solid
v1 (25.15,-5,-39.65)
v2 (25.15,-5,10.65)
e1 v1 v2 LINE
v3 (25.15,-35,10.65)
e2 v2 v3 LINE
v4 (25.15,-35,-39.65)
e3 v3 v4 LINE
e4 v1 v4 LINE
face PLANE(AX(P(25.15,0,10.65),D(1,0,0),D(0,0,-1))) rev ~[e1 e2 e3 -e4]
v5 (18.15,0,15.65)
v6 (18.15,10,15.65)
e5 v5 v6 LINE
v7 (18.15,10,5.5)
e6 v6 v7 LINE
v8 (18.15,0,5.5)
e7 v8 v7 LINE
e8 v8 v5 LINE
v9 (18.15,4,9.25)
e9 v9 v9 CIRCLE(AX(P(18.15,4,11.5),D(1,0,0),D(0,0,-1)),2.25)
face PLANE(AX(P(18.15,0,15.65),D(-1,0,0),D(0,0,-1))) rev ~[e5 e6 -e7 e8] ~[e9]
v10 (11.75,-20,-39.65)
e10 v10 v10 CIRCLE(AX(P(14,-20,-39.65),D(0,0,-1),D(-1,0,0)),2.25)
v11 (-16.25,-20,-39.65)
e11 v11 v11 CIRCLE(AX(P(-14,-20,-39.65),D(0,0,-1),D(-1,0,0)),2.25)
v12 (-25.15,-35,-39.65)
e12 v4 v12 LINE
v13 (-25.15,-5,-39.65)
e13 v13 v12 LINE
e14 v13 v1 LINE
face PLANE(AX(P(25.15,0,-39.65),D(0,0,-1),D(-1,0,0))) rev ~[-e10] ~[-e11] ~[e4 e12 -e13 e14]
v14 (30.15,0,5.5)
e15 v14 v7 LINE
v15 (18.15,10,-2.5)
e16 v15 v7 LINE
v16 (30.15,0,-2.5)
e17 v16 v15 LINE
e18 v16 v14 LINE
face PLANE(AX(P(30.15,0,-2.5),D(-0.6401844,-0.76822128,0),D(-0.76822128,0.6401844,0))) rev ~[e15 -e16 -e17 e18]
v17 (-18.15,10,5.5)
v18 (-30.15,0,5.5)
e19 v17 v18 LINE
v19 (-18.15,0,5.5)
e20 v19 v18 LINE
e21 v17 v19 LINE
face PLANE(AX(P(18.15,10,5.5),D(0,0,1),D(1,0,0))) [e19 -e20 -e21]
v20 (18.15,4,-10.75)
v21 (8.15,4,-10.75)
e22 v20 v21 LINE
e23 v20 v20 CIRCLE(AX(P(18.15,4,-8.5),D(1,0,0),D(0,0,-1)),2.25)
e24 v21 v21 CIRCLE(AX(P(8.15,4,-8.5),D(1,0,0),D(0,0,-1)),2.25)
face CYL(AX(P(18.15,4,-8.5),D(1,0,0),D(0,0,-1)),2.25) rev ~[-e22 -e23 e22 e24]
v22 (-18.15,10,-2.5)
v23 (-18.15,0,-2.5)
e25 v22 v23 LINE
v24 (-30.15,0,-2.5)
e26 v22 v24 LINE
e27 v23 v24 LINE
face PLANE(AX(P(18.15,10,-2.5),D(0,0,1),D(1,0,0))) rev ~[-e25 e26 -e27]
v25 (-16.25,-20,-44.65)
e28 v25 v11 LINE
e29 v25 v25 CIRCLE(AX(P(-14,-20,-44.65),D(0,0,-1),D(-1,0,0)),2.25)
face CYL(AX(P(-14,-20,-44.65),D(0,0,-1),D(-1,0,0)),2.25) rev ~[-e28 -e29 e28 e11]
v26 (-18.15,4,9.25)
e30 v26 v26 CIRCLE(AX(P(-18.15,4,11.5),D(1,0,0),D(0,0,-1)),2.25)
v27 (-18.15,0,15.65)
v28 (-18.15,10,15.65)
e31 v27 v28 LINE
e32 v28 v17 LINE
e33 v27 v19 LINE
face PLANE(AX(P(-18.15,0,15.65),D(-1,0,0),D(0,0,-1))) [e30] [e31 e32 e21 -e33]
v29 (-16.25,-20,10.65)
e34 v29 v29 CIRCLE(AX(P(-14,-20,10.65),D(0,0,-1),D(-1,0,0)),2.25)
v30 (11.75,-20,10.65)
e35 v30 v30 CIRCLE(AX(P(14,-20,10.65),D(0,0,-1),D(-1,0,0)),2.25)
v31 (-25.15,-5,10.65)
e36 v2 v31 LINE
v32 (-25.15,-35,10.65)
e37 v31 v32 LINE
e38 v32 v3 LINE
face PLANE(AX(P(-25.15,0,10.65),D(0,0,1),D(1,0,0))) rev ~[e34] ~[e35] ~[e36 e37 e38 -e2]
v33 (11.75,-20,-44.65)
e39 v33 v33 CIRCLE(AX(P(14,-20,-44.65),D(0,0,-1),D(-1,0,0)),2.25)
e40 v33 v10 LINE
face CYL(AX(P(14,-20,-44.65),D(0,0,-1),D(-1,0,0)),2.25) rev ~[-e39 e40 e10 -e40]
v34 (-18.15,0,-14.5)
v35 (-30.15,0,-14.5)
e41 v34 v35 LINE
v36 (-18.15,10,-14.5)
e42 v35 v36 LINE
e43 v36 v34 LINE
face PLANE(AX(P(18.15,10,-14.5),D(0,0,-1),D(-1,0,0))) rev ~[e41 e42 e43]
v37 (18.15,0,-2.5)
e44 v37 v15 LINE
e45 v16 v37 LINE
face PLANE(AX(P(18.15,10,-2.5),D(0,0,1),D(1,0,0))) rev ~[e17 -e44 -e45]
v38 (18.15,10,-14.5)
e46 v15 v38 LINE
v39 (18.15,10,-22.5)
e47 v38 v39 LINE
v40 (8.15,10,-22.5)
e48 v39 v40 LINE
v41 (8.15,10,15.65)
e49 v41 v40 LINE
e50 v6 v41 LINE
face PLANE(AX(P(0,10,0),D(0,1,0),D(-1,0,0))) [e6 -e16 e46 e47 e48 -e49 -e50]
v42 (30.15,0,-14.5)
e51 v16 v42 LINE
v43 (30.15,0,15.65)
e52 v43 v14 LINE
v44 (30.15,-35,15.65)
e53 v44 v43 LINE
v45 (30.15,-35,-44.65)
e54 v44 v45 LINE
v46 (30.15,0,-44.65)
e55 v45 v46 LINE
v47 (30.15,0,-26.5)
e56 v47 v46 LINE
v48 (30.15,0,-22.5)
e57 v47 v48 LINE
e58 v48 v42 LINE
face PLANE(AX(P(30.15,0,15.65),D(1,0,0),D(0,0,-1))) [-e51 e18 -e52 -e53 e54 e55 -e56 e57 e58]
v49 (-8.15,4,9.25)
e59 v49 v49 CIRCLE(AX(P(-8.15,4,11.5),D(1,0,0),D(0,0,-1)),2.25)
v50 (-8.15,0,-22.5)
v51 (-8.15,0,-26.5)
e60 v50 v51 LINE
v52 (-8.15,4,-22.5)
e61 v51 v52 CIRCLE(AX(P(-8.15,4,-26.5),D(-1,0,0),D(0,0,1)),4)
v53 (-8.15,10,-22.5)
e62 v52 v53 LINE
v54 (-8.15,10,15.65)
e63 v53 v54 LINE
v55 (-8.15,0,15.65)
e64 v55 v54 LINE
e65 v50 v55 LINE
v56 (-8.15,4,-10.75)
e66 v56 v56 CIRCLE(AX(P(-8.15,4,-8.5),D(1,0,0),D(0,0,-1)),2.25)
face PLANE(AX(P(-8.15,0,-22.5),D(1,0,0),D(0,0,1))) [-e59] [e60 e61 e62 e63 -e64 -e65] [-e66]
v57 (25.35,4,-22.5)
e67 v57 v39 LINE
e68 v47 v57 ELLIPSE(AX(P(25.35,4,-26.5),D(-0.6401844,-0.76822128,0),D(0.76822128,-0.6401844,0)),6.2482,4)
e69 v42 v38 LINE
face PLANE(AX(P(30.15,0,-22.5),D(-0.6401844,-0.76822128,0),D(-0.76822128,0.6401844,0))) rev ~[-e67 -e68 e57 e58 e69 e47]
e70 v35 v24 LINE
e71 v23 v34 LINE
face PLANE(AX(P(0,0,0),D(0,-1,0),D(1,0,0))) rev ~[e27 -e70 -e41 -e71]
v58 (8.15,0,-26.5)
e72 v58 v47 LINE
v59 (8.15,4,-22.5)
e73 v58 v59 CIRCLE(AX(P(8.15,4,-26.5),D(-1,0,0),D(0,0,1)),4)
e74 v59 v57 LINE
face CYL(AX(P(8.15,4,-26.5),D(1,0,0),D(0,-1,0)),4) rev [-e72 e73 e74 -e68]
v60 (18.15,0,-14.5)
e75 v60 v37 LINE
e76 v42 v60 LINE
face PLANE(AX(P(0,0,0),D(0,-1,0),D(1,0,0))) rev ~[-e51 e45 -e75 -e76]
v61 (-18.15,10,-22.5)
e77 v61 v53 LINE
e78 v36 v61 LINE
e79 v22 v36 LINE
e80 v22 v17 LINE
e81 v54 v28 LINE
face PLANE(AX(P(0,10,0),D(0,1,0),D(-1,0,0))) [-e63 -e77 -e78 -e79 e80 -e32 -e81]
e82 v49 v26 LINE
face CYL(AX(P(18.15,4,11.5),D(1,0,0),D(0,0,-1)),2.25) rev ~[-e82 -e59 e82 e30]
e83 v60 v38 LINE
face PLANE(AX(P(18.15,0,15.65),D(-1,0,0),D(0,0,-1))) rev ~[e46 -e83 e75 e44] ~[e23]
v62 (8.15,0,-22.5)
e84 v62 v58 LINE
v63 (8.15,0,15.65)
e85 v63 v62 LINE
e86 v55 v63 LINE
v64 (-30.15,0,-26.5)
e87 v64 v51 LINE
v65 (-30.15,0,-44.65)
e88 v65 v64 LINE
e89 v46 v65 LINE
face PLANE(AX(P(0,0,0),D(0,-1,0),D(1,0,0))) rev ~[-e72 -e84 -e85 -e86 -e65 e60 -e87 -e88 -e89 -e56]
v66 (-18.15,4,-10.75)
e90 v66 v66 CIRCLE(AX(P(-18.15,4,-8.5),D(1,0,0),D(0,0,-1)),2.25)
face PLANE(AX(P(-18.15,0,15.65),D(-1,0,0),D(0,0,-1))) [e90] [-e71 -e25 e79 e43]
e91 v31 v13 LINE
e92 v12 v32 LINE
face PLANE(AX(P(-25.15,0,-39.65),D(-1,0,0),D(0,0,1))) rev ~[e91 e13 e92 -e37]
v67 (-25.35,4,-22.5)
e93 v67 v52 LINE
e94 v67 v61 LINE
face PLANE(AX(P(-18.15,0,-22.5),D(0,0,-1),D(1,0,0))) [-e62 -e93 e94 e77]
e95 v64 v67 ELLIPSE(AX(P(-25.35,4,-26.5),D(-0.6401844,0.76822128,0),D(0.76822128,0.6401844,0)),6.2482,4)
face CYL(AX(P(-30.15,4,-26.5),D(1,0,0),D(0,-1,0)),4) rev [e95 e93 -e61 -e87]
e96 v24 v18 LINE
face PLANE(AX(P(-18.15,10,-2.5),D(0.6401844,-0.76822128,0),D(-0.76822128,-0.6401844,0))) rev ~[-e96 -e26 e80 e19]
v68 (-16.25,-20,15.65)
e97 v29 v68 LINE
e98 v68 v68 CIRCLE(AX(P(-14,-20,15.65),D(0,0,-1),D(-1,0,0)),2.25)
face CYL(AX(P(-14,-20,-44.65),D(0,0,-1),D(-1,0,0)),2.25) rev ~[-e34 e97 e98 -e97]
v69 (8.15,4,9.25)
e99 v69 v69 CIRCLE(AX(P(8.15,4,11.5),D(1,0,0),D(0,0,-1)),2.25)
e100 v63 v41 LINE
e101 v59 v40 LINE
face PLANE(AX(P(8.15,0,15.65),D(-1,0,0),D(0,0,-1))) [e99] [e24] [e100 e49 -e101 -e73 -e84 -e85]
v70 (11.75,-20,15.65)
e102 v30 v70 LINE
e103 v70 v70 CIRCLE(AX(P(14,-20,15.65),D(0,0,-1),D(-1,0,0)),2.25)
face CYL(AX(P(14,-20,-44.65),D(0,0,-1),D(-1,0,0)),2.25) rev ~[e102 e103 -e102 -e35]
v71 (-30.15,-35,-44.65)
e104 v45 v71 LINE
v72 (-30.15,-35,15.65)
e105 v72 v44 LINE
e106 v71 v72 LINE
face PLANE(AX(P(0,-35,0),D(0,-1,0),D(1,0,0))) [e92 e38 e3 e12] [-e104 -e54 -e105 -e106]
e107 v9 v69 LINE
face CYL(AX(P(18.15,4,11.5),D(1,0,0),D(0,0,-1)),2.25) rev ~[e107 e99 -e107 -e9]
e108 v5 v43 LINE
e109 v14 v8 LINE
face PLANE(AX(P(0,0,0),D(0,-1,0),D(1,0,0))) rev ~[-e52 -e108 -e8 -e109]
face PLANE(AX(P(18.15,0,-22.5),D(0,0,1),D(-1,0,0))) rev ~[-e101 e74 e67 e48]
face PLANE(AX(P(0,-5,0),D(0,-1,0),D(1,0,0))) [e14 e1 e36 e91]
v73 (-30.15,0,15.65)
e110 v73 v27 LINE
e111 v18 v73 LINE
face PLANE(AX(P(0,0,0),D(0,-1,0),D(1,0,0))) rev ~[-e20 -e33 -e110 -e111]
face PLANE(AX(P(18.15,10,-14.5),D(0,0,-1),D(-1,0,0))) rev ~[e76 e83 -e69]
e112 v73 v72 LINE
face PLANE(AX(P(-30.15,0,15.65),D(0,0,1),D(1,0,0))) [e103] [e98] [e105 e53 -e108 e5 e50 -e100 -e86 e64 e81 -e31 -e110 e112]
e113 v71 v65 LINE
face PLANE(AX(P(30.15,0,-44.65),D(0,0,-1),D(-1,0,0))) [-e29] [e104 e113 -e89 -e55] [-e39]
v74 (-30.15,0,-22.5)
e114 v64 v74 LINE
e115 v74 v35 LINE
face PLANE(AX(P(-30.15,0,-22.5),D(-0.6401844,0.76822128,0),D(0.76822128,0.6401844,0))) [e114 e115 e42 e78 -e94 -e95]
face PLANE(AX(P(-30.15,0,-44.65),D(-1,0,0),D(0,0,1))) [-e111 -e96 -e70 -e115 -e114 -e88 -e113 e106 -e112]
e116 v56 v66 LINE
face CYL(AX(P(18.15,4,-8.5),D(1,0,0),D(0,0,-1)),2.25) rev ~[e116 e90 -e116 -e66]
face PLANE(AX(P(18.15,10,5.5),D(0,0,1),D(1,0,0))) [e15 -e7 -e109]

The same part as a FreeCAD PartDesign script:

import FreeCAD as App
import Part
import Sketcher

V = App.Vector


def edges_at(feature, points):
    """Names of the edges that pass closest to the given points."""
    edges = feature.Shape.Edges
    near = lambda p: min(range(len(edges)), key=lambda i: edges[i].distToShape(Part.Vertex(*p))[0])
    return sorted({f"Edge{near(p) + 1}" for p in points})


def add_polygon(sketch, points):
    """Adds a closed chain of lines whose ends are joined by coincident constraints."""
    first, n = sketch.GeometryCount, len(points)
    for a, b in zip(points, points[1:] + points[:1]):
        sketch.addGeometry(Part.LineSegment(App.Vector(*a, 0), App.Vector(*b, 0)), False)
    for i in range(n):
        sketch.addConstraint(Sketcher.Constraint("Coincident", first + i, 2, first + (i + 1) % n, 1))

doc = App.newDocument("Part")
body = doc.addObject("PartDesign::Body", "Body")
body.AllowCompound = True

sketch1 = body.newObject("Sketcher::SketchObject", "Sketch")
sketch1.AttachmentSupport = (doc.getObject("XZ_Plane"), [""])
sketch1.MapMode = "FlatFace"
add_polygon(sketch1, [(-18, 16), (-8, 16), (-8, -22), (-18, -22)])
add_polygon(sketch1, [(8, -22), (8, 16), (18, 16), (18, -22)])
sketch1.addConstraint(Sketcher.Constraint("Horizontal", 0))
sketch1.addConstraint(Sketcher.Constraint("Vertical", 1))
sketch1.addConstraint(Sketcher.Constraint("Horizontal", 2))
sketch1.addConstraint(Sketcher.Constraint("Vertical", 3))
sketch1.addConstraint(Sketcher.Constraint("Vertical", 4))
sketch1.addConstraint(Sketcher.Constraint("Horizontal", 5))
sketch1.addConstraint(Sketcher.Constraint("Vertical", 6))
sketch1.addConstraint(Sketcher.Constraint("Horizontal", 7))
sketch1.addConstraint(Sketcher.Constraint("Symmetric", 0, 2, 4, 2, -2))
sketch1.addConstraint(Sketcher.Constraint("Symmetric", 2, 2, 6, 2, -2))
sketch1.addConstraint(Sketcher.Constraint("DistanceX", 0, 1, 0, 2, 10.0))
sketch1.addConstraint(Sketcher.Constraint("DistanceX", 0, 2, 4, 2, 16.3))
sketch1.addConstraint(Sketcher.Constraint("DistanceY", 1, 2, 1, 1, 38.15))
sketch1.addConstraint(Sketcher.Constraint("DistanceY", 1, 2, -1, 1, 22.5))
pad1 = body.newObject("PartDesign::Pad", "Pad")
pad1.Profile = sketch1
pad1.Length = 10
pad1.Reversed = True

sketch2 = body.newObject("Sketcher::SketchObject", "Sketch001")
sketch2.AttachmentSupport = (doc.getObject("YZ_Plane"), [""])
sketch2.MapMode = "FlatFace"
sketch2.AttachmentOffset = App.Placement(V(0, 0, 18.15), App.Rotation())
sketch2.addGeometry(Part.Circle(V(4, 11.5, 0), V(0, 0, 1), 2.2), False)
sketch2.addGeometry(Part.Circle(V(4, -8.5, 0), V(0, 0, 1), 2.2), False)
sketch2.addConstraint(Sketcher.Constraint("Equal", 0, 1))
sketch2.addConstraint(Sketcher.Constraint("Vertical", 0, 3, 1, 3))
sketch2.addConstraint(Sketcher.Constraint("Diameter", 0, 4.5))
sketch2.addConstraint(Sketcher.Constraint("DistanceX", -1, 1, 0, 3, 4.0))
sketch2.addConstraint(Sketcher.Constraint("DistanceY", 1, 3, 0, 3, 20.0))
sketch2.addConstraint(Sketcher.Constraint("DistanceY", -1, 1, 0, 3, 11.5))
pocket1 = body.newObject("PartDesign::Pocket", "Pocket")
pocket1.Profile = sketch2
pocket1.Length = 60

sketch3 = body.newObject("Sketcher::SketchObject", "Sketch002")
sketch3.AttachmentSupport = (doc.getObject("XZ_Plane"), [""])
sketch3.MapMode = "FlatFace"
add_polygon(sketch3, [(30, 16), (-30, 16), (-30, -45), (30, -45)])
sketch3.addConstraint(Sketcher.Constraint("Horizontal", 0))
sketch3.addConstraint(Sketcher.Constraint("Vertical", 1))
sketch3.addConstraint(Sketcher.Constraint("Horizontal", 2))
sketch3.addConstraint(Sketcher.Constraint("Vertical", 3))
sketch3.addConstraint(Sketcher.Constraint("Equal", 2, 1))
sketch3.addConstraint(Sketcher.Constraint("DistanceX", 0, 2, 0, 1, 60.3))
sketch3.addConstraint(Sketcher.Constraint("DistanceX", 0, 2, -1, 1, 30.15))
sketch3.addConstraint(Sketcher.Constraint("DistanceY", -1, 1, 0, 2, 15.65))
pad2 = body.newObject("PartDesign::Pad", "Pad001")
pad2.Profile = sketch3
pad2.Length = 5

sketch4 = body.newObject("Sketcher::SketchObject", "Sketch003")
sketch4.AttachmentSupport = (doc.getObject("XZ_Plane"), [""])
sketch4.MapMode = "FlatFace"
add_polygon(sketch4, [(30, 16), (-30, 16), (-30, -45), (30, -45)])
add_polygon(sketch4, [(-25, -40), (-25, 11), (25, 11), (25, -40)])
sketch4.addConstraint(Sketcher.Constraint("Horizontal", 0))
sketch4.addConstraint(Sketcher.Constraint("Vertical", 1))
sketch4.addConstraint(Sketcher.Constraint("Horizontal", 2))
sketch4.addConstraint(Sketcher.Constraint("Vertical", 3))
sketch4.addConstraint(Sketcher.Constraint("Vertical", 4))
sketch4.addConstraint(Sketcher.Constraint("Horizontal", 5))
sketch4.addConstraint(Sketcher.Constraint("Vertical", 6))
sketch4.addConstraint(Sketcher.Constraint("Horizontal", 7))
sketch4.addConstraint(Sketcher.Constraint("Equal", 2, 1))
sketch4.addConstraint(Sketcher.Constraint("Equal", 7, 4))
sketch4.addConstraint(Sketcher.Constraint("DistanceX", 0, 2, 0, 1, 60.3))
sketch4.addConstraint(Sketcher.Constraint("DistanceX", 5, 1, 5, 2, 50.3))
sketch4.addConstraint(Sketcher.Constraint("DistanceX", 0, 2, 4, 2, 5.0))
sketch4.addConstraint(Sketcher.Constraint("DistanceY", 4, 2, 0, 2, 5.0))
sketch4.addConstraint(Sketcher.Constraint("DistanceX", 0, 2, -1, 1, 30.15))
sketch4.addConstraint(Sketcher.Constraint("DistanceY", -1, 1, 0, 2, 15.65))
pad3 = body.newObject("PartDesign::Pad", "Pad002")
pad3.Profile = sketch4
pad3.Length = 35

sketch5 = body.newObject("Sketcher::SketchObject", "Sketch004")
sketch5.AttachmentSupport = (doc.getObject("XY_Plane"), [""])
sketch5.MapMode = "FlatFace"
sketch5.AttachmentOffset = App.Placement(V(0, 0, -44.65), App.Rotation())
sketch5.addGeometry(Part.Circle(V(-14, -20, 0), V(0, 0, 1), 2.2), False)
sketch5.addGeometry(Part.Circle(V(14, -20, 0), V(0, 0, 1), 2.2), False)
sketch5.addConstraint(Sketcher.Constraint("Equal", 0, 1))
sketch5.addConstraint(Sketcher.Constraint("Symmetric", 0, 3, 1, 3, -2))
sketch5.addConstraint(Sketcher.Constraint("Diameter", 0, 4.5))
sketch5.addConstraint(Sketcher.Constraint("DistanceX", 0, 3, 1, 3, 28.0))
sketch5.addConstraint(Sketcher.Constraint("DistanceY", 0, 3, -1, 1, 20.0))
pocket2 = body.newObject("PartDesign::Pocket", "Pocket001")
pocket2.Profile = sketch5
pocket2.Length = 61
pocket2.Reversed = True

sketch6 = body.newObject("Sketcher::SketchObject", "Sketch005")
sketch6.AttachmentSupport = (doc.getObject("XY_Plane"), [""])
sketch6.MapMode = "FlatFace"
sketch6.AttachmentOffset = App.Placement(V(0, 0, -22.5), App.Rotation())
add_polygon(sketch6, [(18, 10), (30, 0), (18, 0)])
add_polygon(sketch6, [(-18, 10), (-18, 0), (-30, 0)])
sketch6.addConstraint(Sketcher.Constraint("Horizontal", 1))
sketch6.addConstraint(Sketcher.Constraint("Vertical", 2))
sketch6.addConstraint(Sketcher.Constraint("Vertical", 3))
sketch6.addConstraint(Sketcher.Constraint("Horizontal", 4))
sketch6.addConstraint(Sketcher.Constraint("Symmetric", 1, 2, 3, 2, -1, 1))
sketch6.addConstraint(Sketcher.Constraint("Symmetric", 0, 2, 4, 2, -2))
sketch6.addConstraint(Sketcher.Constraint("Horizontal", 2, 2, 5, 2))
sketch6.addConstraint(Sketcher.Constraint("DistanceX", 1, 2, 1, 1, 12.0))
sketch6.addConstraint(Sketcher.Constraint("DistanceY", 2, 1, 2, 2, 10.0))
sketch6.addConstraint(Sketcher.Constraint("DistanceX", 3, 2, 1, 2, 36.3))
pad4 = body.newObject("PartDesign::Pad", "Pad003")
pad4.Profile = sketch6
pad4.Length = 8

sketch7 = body.newObject("Sketcher::SketchObject", "Sketch006")
sketch7.AttachmentSupport = (doc.getObject("XY_Plane"), [""])
sketch7.MapMode = "FlatFace"
sketch7.AttachmentOffset = App.Placement(V(0, 0, -2.5), App.Rotation())
add_polygon(sketch7, [(-30, 0), (-18, 0), (-18, 10)])
add_polygon(sketch7, [(18, 0), (30, 0), (18, 10)])
sketch7.addConstraint(Sketcher.Constraint("Horizontal", 0))
sketch7.addConstraint(Sketcher.Constraint("Vertical", 1))
sketch7.addConstraint(Sketcher.Constraint("Horizontal", 3))
sketch7.addConstraint(Sketcher.Constraint("Vertical", 5))
sketch7.addConstraint(Sketcher.Constraint("Symmetric", 2, 2, 3, 2, -1, 1))
sketch7.addConstraint(Sketcher.Constraint("Symmetric", 1, 2, 4, 2, -2))
sketch7.addConstraint(Sketcher.Constraint("PointOnObject", 0, 2, -1))
sketch7.addConstraint(Sketcher.Constraint("DistanceX", 0, 1, 0, 2, 12.0))
sketch7.addConstraint(Sketcher.Constraint("DistanceY", 1, 1, 1, 2, 10.0))
sketch7.addConstraint(Sketcher.Constraint("DistanceX", 0, 2, 3, 2, 48.3))
pad5 = body.newObject("PartDesign::Pad", "Pad004")
pad5.Profile = sketch7
pad5.Length = 8
doc.recompute()

fillet = body.newObject("PartDesign::Fillet", "Fillet")
fillet.Base = (pad5, edges_at(pad5, [(19.15, 0, -22.5), (-19.15, 0, -22.5)]))
fillet.Radius = 4

doc.recompute()
